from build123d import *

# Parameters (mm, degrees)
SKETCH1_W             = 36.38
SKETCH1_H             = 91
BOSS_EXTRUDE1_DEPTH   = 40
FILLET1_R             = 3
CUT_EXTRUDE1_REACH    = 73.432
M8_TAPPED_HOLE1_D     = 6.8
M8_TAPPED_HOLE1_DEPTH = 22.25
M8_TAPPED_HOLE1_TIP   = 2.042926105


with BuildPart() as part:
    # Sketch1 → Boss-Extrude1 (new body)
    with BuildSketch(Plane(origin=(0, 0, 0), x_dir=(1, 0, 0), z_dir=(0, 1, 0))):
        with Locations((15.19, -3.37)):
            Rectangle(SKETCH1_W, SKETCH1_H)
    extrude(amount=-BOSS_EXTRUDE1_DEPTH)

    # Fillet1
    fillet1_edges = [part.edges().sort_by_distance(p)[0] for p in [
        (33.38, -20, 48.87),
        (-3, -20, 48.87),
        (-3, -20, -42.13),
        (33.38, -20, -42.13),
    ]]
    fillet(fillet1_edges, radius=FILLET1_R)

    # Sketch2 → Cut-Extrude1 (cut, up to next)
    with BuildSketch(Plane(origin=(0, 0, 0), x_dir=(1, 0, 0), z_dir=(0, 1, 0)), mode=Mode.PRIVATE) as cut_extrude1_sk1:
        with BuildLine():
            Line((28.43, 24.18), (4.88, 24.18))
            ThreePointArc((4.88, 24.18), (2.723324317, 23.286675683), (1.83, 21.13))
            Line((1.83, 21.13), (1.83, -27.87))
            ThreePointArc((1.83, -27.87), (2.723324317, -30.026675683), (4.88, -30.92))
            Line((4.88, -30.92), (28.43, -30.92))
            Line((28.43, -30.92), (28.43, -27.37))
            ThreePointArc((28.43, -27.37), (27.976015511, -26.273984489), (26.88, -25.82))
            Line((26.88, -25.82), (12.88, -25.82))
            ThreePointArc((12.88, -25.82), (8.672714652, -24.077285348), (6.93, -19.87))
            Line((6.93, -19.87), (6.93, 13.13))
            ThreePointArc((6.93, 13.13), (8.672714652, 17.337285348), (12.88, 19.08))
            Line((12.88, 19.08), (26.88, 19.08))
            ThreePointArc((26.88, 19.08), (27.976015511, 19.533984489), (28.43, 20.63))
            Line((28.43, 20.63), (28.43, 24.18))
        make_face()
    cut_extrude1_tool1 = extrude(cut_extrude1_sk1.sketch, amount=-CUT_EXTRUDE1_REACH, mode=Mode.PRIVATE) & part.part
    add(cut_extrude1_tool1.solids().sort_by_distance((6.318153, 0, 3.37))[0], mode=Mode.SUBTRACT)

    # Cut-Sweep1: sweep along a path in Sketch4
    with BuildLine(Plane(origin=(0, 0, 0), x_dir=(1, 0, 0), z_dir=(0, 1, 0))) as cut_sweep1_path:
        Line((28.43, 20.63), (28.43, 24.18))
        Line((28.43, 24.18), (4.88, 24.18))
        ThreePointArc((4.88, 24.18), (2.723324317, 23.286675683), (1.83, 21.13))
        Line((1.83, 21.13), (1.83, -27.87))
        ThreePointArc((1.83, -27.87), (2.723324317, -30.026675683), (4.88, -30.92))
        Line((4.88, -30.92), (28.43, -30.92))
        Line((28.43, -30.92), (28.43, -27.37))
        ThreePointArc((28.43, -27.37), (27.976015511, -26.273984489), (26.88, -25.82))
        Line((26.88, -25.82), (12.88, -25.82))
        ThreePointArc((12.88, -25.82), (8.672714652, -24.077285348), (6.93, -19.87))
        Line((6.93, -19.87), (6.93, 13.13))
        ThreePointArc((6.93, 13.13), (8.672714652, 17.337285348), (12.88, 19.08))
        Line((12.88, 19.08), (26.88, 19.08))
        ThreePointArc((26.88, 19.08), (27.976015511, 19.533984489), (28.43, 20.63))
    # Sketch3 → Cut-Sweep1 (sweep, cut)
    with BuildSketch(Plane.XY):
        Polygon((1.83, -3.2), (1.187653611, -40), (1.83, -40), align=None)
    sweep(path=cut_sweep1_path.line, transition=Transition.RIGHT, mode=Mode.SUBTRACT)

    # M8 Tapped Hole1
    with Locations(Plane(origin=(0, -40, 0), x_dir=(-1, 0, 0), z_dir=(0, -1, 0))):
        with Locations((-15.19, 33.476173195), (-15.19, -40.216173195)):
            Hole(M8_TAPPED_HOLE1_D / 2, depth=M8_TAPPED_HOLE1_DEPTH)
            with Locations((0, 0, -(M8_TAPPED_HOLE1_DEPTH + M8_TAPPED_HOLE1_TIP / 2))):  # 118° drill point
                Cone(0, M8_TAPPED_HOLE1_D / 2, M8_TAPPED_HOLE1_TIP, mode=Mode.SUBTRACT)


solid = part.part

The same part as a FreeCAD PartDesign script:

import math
import FreeCAD as App
import Part
import Sketcher

V = App.Vector
Q = App.Units.Quantity


def edges_at(feature, points):
    """Names of the edges that pass closest to the given points."""
    edges = feature.Shape.Edges
    near = lambda p: min(range(len(edges)), key=lambda i: edges[i].distToShape(Part.Vertex(*p))[0])
    return sorted({f"Edge{near(p) + 1}" for p in points})

doc = App.newDocument("Part")
params = doc.addObject("Spreadsheet::Sheet", "Params")
for row, (alias, value) in enumerate([
    ("sketch1_height", "91 mm"),
    ("sketch1_width", "36.38 mm"),
    ("pad1_length", "40 mm"),
    ("fillet_radius", "3 mm"),
    ("sketch2_width", "14 mm"),
    ("sketch2_height", "49 mm"),
    ("sketch2_height2", "33 mm"),
    ("sketch2_radius", "3.05 mm"),
    ("sketch2_radius2", "1.55 mm"),
    ("sketch3_height", "36.8 mm"),
    ("sketch4_width", "14 mm"),
    ("sketch4_height", "49 mm"),
    ("sketch4_height2", "33 mm"),
    ("sketch4_radius", "3.05 mm"),
    ("sketch4_radius2", "1.55 mm"),
    ("sketch5_diameter", "6.8 mm"),
    ("hole_diameter", "6.8 mm"),
    ("hole_depth", "22.25 mm"),
], start=1):
    params.set(f"A{row}", alias)
    params.set(f"B{row}", "=" + value)
    params.setAlias(f"B{row}", alias)

body = doc.addObject("PartDesign::Body", "Body")

sketch1 = doc.addObject("Sketcher::SketchObject", "Sketch")
body.addObject(sketch1)
sketch1.AttachmentSupport = (doc.XZ_Plane, [""])
sketch1.MapMode = "FlatFace"
sketch1.addGeometry([
    Part.LineSegment(V(-3, -42, 0), V(-3, 49, 0)),
    Part.LineSegment(V(-3, 49, 0), V(33, 49, 0)),
    Part.LineSegment(V(33, 49, 0), V(33, -42, 0)),
    Part.LineSegment(V(33, -42, 0), V(-3, -42, 0)),
], False)
sketch1.addConstraint([
    Sketcher.Constraint("Coincident", 0, 2, 1, 1),
    Sketcher.Constraint("Coincident", 1, 2, 2, 1),
    Sketcher.Constraint("Coincident", 2, 2, 3, 1),
    Sketcher.Constraint("Coincident", 3, 2, 0, 1),
    Sketcher.Constraint("Vertical", 0),
    Sketcher.Constraint("Horizontal", 1),
    Sketcher.Constraint("Vertical", 2),
    Sketcher.Constraint("Horizontal", 3),
    Sketcher.Constraint("DistanceY", 0, 1, 0, 2, 91.0),
    Sketcher.Constraint("DistanceX", 0, 2, -1, 1, 3.0),
    Sketcher.Constraint("DistanceX", 1, 1, 1, 2, 36.38),
    Sketcher.Constraint("DistanceY", -1, 1, 0, 2, 48.87),
])
sketch1.setExpression("Constraints[8]", "Params.sketch1_height")
sketch1.setExpression("Constraints[10]", "Params.sketch1_width")
pad1 = doc.addObject("PartDesign::Pad", "Pad")
body.addObject(pad1)
pad1.Profile = sketch1
pad1.setExpression("Length", "Params.pad1_length")
doc.recompute()

fillet = doc.addObject("PartDesign::Fillet", "Fillet")
body.addObject(fillet)
fillet.Base = (pad1, edges_at(pad1, [
    (33.38, -20, 48.87),
    (-3, -20, 48.87),
    (-3, -20, -42.13),
    (33.38, -20, -42.13),
]))
fillet.setExpression("Radius", "Params.fillet_radius")

sketch2 = doc.addObject("Sketcher::SketchObject", "Sketch001")
body.addObject(sketch2)
sketch2.AttachmentSupport = (doc.XZ_Plane, [""])
sketch2.MapMode = "FlatFace"
sketch2.addGeometry([
    Part.LineSegment(V(28.4, -24.2, 0), V(4.9, -24.2, 0)),
    Part.ArcOfCircle(Part.Circle(V(4.9, -21.1, 0), V(0, 0, 1), 3), math.radians(180), math.radians(270)),
    Part.LineSegment(V(1.8, -21.1, 0), V(1.8, 27.9, 0)),
    Part.ArcOfCircle(Part.Circle(V(4.9, 27.9, 0), V(0, 0, 1), 3), math.radians(90), math.radians(180)),
    Part.LineSegment(V(4.9, 30.9, 0), V(28.4, 30.9, 0)),
    Part.LineSegment(V(28.4, 30.9, 0), V(28.4, 27.4, 0)),
    Part.ArcOfCircle(Part.Circle(V(26.9, 27.4, 0), V(0, 0, 1), 1.5), math.radians(-90), math.radians(0)),
    Part.LineSegment(V(26.9, 25.8, 0), V(12.9, 25.8, 0)),
    Part.ArcOfCircle(Part.Circle(V(12.9, 19.9, 0), V(0, 0, 1), 6), math.radians(90), math.radians(180)),
    Part.LineSegment(V(6.9, 19.9, 0), V(6.9, -13.1, 0)),
    Part.ArcOfCircle(Part.Circle(V(12.9, -13.1, 0), V(0, 0, 1), 6), math.radians(180), math.radians(270)),
    Part.LineSegment(V(12.9, -19.1, 0), V(26.9, -19.1, 0)),
    Part.ArcOfCircle(Part.Circle(V(26.9, -20.6, 0), V(0, 0, 1), 1.5), math.radians(0), math.radians(90)),
    Part.LineSegment(V(28.4, -20.6, 0), V(28.4, -24.2, 0)),
], False)
sketch2.addConstraint([
    Sketcher.Constraint("Tangent", 0, 2, 1, 2),
    Sketcher.Constraint("Tangent", 1, 1, 2, 1),
    Sketcher.Constraint("Tangent", 2, 2, 3, 2),
    Sketcher.Constraint("Tangent", 3, 1, 4, 1),
    Sketcher.Constraint("Coincident", 4, 2, 5, 1),
    Sketcher.Constraint("Tangent", 5, 2, 6, 2),
    Sketcher.Constraint("Tangent", 6, 1, 7, 1),
    Sketcher.Constraint("Tangent", 7, 2, 8, 1),
    Sketcher.Constraint("Tangent", 8, 2, 9, 1),
    Sketcher.Constraint("Tangent", 9, 2, 10, 1),
    Sketcher.Constraint("Tangent", 10, 2, 11, 1),
    Sketcher.Constraint("Tangent", 11, 2, 12, 2),
    Sketcher.Constraint("Tangent", 12, 1, 13, 1),
    Sketcher.Constraint("Coincident", 13, 2, 0, 1),
    Sketcher.Constraint("Horizontal", 0),
    Sketcher.Constraint("Vertical", 2),
    Sketcher.Constraint("Horizontal", 4),
    Sketcher.Constraint("Vertical", 5),
    Sketcher.Constraint("Horizontal", 7),
    Sketcher.Constraint("Vertical", 9),
    Sketcher.Constraint("Horizontal", 11),
    Sketcher.Constraint("Vertical", 13),
    Sketcher.Constraint("Equal", 1, 3),
    Sketcher.Constraint("Equal", 8, 10),
    Sketcher.Constraint("Equal", 6, 12),
    Sketcher.Constraint("Vertical", 6, 3, 12, 3),
    Sketcher.Constraint("Equal", 5, 13),
    Sketcher.Constraint("DistanceX", 7, 2, 7, 1, 14.0),
    Sketcher.Constraint("DistanceY", 2, 1, 2, 2, 49.0),
    Sketcher.Constraint("DistanceY", 9, 2, 9, 1, 33.0),
    Sketcher.Constraint("Radius", 1, 3.05),
    Sketcher.Constraint("Radius", 6, 1.55),
    Sketcher.Constraint("Radius", 8, 5.95),
    Sketcher.Constraint("DistanceX", 3, 3, 6, 3, 22.0),
    Sketcher.Constraint("DistanceX", -1, 1, 1, 3, 4.88),
    Sketcher.Constraint("DistanceY", 1, 3, -1, 1, 21.13),
])
sketch2.setExpression("Constraints[27]", "Params.sketch2_width")
sketch2.setExpression("Constraints[28]", "Params.sketch2_height")
sketch2.setExpression("Constraints[29]", "Params.sketch2_height2")
sketch2.setExpression("Constraints[30]", "Params.sketch2_radius")
sketch2.setExpression("Constraints[31]", "Params.sketch2_radius2")
pocket1 = doc.addObject("PartDesign::Pocket", "Pocket")
body.addObject(pocket1)
pocket1.Profile = sketch2
pocket1.Type = "UpToFirst"
pocket1.Reversed = True

sketch3 = doc.addObject("Sketcher::SketchObject", "Sketch002")
body.addObject(sketch3)
sketch3.AttachmentSupport = (doc.XY_Plane, [""])
sketch3.MapMode = "FlatFace"
sketch3.addGeometry([
    Part.LineSegment(V(1.8, -3.2, 0), V(1.2, -40, 0)),
    Part.LineSegment(V(1.2, -40, 0), V(1.8, -40, 0)),
    Part.LineSegment(V(1.8, -40, 0), V(1.8, -3.2, 0)),
], False)
sketch3.addConstraint([
    Sketcher.Constraint("Coincident", 0, 2, 1, 1),
    Sketcher.Constraint("Coincident", 1, 2, 2, 1),
    Sketcher.Constraint("Coincident", 2, 2, 0, 1),
    Sketcher.Constraint("Horizontal", 1),
    Sketcher.Constraint("Vertical", 2),
    Sketcher.Constraint("Angle", 0, Q("-91 deg")),
    Sketcher.Constraint("DistanceY", 2, 1, 2, 2, 36.8),
    Sketcher.Constraint("DistanceY", 0, 2, -1, 1, 40.0),
    Sketcher.Constraint("DistanceX", -1, 1, 1, 2, 1.83),
])
sketch3.setExpression("Constraints[6]", "Params.sketch3_height")

sketch4 = doc.addObject("Sketcher::SketchObject", "Sketch003")
body.addObject(sketch4)
sketch4.AttachmentSupport = (doc.XZ_Plane, [""])
sketch4.MapMode = "FlatFace"
sketch4.addGeometry([
    Part.LineSegment(V(28.4, -20.6, 0), V(28.4, -24.2, 0)),
    Part.LineSegment(V(28.4, -24.2, 0), V(4.9, -24.2, 0)),
    Part.ArcOfCircle(Part.Circle(V(4.9, -21.1, 0), V(0, 0, 1), 3), math.radians(180), math.radians(270)),
    Part.LineSegment(V(1.8, -21.1, 0), V(1.8, 27.9, 0)),
    Part.ArcOfCircle(Part.Circle(V(4.9, 27.9, 0), V(0, 0, 1), 3), math.radians(90), math.radians(180)),
    Part.LineSegment(V(4.9, 30.9, 0), V(28.4, 30.9, 0)),
    Part.LineSegment(V(28.4, 30.9, 0), V(28.4, 27.4, 0)),
    Part.ArcOfCircle(Part.Circle(V(26.9, 27.4, 0), V(0, 0, 1), 1.5), math.radians(-90), math.radians(0)),
    Part.LineSegment(V(26.9, 25.8, 0), V(12.9, 25.8, 0)),
    Part.ArcOfCircle(Part.Circle(V(12.9, 19.9, 0), V(0, 0, 1), 6), math.radians(90), math.radians(180)),
    Part.LineSegment(V(6.9, 19.9, 0), V(6.9, -13.1, 0)),
    Part.ArcOfCircle(Part.Circle(V(12.9, -13.1, 0), V(0, 0, 1), 6), math.radians(180), math.radians(270)),
    Part.LineSegment(V(12.9, -19.1, 0), V(26.9, -19.1, 0)),
    Part.ArcOfCircle(Part.Circle(V(26.9, -20.6, 0), V(0, 0, 1), 1.5), math.radians(0), math.radians(90)),
], False)
sketch4.addConstraint([
    Sketcher.Constraint("Coincident", 0, 2, 1, 1),
    Sketcher.Constraint("Tangent", 1, 2, 2, 2),
    Sketcher.Constraint("Tangent", 2, 1, 3, 1),
    Sketcher.Constraint("Tangent", 3, 2, 4, 2),
    Sketcher.Constraint("Tangent", 4, 1, 5, 1),
    Sketcher.Constraint("Coincident", 5, 2, 6, 1),
    Sketcher.Constraint("Tangent", 6, 2, 7, 2),
    Sketcher.Constraint("Tangent", 7, 1, 8, 1),
    Sketcher.Constraint("Tangent", 8, 2, 9, 1),
    Sketcher.Constraint("Tangent", 9, 2, 10, 1),
    Sketcher.Constraint("Tangent", 10, 2, 11, 1),
    Sketcher.Constraint("Tangent", 11, 2, 12, 1),
    Sketcher.Constraint("Tangent", 12, 2, 13, 2),
    Sketcher.Constraint("Tangent", 13, 1, 0, 1),
    Sketcher.Constraint("Vertical", 0),
    Sketcher.Constraint("Horizontal", 1),
    Sketcher.Constraint("Vertical", 3),
    Sketcher.Constraint("Horizontal", 5),
    Sketcher.Constraint("Vertical", 6),
    Sketcher.Constraint("Horizontal", 8),
    Sketcher.Constraint("Vertical", 10),
    Sketcher.Constraint("Horizontal", 12),
    Sketcher.Constraint("Equal", 2, 4),
    Sketcher.Constraint("Equal", 9, 11),
    Sketcher.Constraint("Equal", 7, 13),
    Sketcher.Constraint("Vertical", 7, 3, 13, 3),
    Sketcher.Constraint("Equal", 0, 6),
    Sketcher.Constraint("DistanceX", 8, 2, 8, 1, 14.0),
    Sketcher.Constraint("DistanceY", 3, 1, 3, 2, 49.0),
    Sketcher.Constraint("DistanceY", 10, 2, 10, 1, 33.0),
    Sketcher.Constraint("Radius", 2, 3.05),
    Sketcher.Constraint("Radius", 7, 1.55),
    Sketcher.Constraint("Radius", 9, 5.95),
    Sketcher.Constraint("DistanceX", 4, 3, 7, 3, 22.0),
    Sketcher.Constraint("DistanceX", -1, 1, 2, 3, 4.88),
    Sketcher.Constraint("DistanceY", 2, 3, -1, 1, 21.13),
])
sketch4.setExpression("Constraints[27]", "Params.sketch4_width")
sketch4.setExpression("Constraints[28]", "Params.sketch4_height")
sketch4.setExpression("Constraints[29]", "Params.sketch4_height2")
sketch4.setExpression("Constraints[30]", "Params.sketch4_radius")
sketch4.setExpression("Constraints[31]", "Params.sketch4_radius2")
doc.recompute()

subtractivepipe = doc.addObject("PartDesign::SubtractivePipe", "SubtractivePipe")
body.addObject(subtractivepipe)
subtractivepipe.Profile = sketch3
subtractivepipe.Spine = (sketch4, ["Edge1", "Edge2", "Edge3", "Edge4", "Edge5", "Edge6", "Edge7", "Edge8", "Edge9", "Edge10", "Edge11", "Edge12", "Edge13", "Edge14"])
subtractivepipe.Transition = "Right corner"

sketch5 = doc.addObject("Sketcher::SketchObject", "Sketch004")
body.addObject(sketch5)
sketch5.AttachmentSupport = (doc.XZ_Plane, [""])
sketch5.MapMode = "FlatFace"
sketch5.AttachmentOffset = App.Placement(V(0, 0, 40), App.Rotation())
sketch5.addGeometry([
    Part.Circle(V(15.2, -33.5, 0), V(0, 0, 1), 3.4),
    Part.Circle(V(15.2, 40.2, 0), V(0, 0, 1), 3.4),
], False)
sketch5.addConstraint([
    Sketcher.Constraint("Equal", 0, 1),
    Sketcher.Constraint("Vertical", 0, 3, 1, 3),
    Sketcher.Constraint("Diameter", 0, 6.8),
    Sketcher.Constraint("DistanceX", -1, 1, 0, 3, 15.19),
    Sketcher.Constraint("DistanceY", 0, 3, -1, 1, 33.476173),
    Sketcher.Constraint("DistanceY", -1, 1, 1, 3, 40.216173),
])
sketch5.setExpression("Constraints[2]", "Params.sketch5_diameter")
doc.recompute()
hole = doc.addObject("PartDesign::Hole", "Hole")
body.addObject(hole)
hole.Profile = sketch5
hole.ThreadType = "None"
hole.setExpression("Diameter", "Params.hole_diameter")
hole.DepthType = "Dimension"
hole.setExpression("Depth", "Params.hole_depth")
hole.DrillPoint = "Angled"
hole.DrillPointAngle = 118

doc.recompute()
